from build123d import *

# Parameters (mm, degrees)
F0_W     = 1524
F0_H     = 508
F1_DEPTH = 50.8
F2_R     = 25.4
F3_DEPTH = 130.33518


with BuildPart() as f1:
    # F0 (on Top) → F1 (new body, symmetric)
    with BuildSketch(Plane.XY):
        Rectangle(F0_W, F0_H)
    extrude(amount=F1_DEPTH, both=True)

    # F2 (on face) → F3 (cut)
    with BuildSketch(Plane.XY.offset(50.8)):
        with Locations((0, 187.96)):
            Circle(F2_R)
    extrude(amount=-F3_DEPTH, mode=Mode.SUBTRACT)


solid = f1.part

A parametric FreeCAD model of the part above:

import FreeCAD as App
import Part
import Sketcher

V = App.Vector
Q = App.Units.Quantity


def add_polygon(sketch, points):
    """Adds a closed chain of lines whose ends are joined by coincident constraints."""
    first, n = sketch.GeometryCount, len(points)
    for a, b in zip(points, points[1:] + points[:1]):
        sketch.addGeometry(Part.LineSegment(App.Vector(*a, 0), App.Vector(*b, 0)), False)
    for i in range(n):
        sketch.addConstraint(Sketcher.Constraint("Coincident", first + i, 2, first + (i + 1) % n, 1))

doc = App.newDocument("Part")
body = doc.addObject("PartDesign::Body", "Body")

# Sketch on XY plane
sketch1 = body.newObject("Sketcher::SketchObject", "Sketch")
sketch1.AttachmentSupport = (doc.getObject("XY_Plane"), [""])
sketch1.MapMode = "FlatFace"
add_polygon(sketch1, [(-762, 254), (-762, -254), (762, -254), (762, 254)])  # lines 0-3
sketch1.addConstraint([
    Sketcher.Constraint("Vertical", 0),
    Sketcher.Constraint("Horizontal", 1),
    Sketcher.Constraint("Vertical", 2),
    Sketcher.Constraint("Horizontal", 3),
    Sketcher.Constraint("Symmetric", 0, 2, 2, 2, -1, 1),
    Sketcher.Constraint("DistanceX", 1, 1, 1, 2, Q("60 in")),
    Sketcher.Constraint("DistanceY", 0, 2, 0, 1, Q("20 in")),
])
pad1 = body.newObject("PartDesign::Pad", "Pad")
pad1.Profile = sketch1
pad1.Length = Q("4 in")
pad1.Midplane = True

# Sketch on XY plane
sketch2 = body.newObject("Sketcher::SketchObject", "Sketch001")
sketch2.AttachmentSupport = (doc.getObject("XY_Plane"), [""])
sketch2.MapMode = "FlatFace"
sketch2.AttachmentOffset = App.Placement(V(0, 0, 2 * 25.4), App.Rotation())
sketch2.addGeometry(Part.Circle(V(0, 188, 0), V(0, 0, 1), 25), False)
sketch2.addConstraint([
    Sketcher.Constraint("PointOnObject", 0, 3, -2),
    Sketcher.Constraint("Diameter", 0, Q("2 in")),
    Sketcher.Constraint("DistanceY", -1, 1, 0, 3, Q("7.4 in")),
])
pocket1 = body.newObject("PartDesign::Pocket", "Pocket")
pocket1.Profile = sketch2
pocket1.Length = 130.33518

doc.recompute()
